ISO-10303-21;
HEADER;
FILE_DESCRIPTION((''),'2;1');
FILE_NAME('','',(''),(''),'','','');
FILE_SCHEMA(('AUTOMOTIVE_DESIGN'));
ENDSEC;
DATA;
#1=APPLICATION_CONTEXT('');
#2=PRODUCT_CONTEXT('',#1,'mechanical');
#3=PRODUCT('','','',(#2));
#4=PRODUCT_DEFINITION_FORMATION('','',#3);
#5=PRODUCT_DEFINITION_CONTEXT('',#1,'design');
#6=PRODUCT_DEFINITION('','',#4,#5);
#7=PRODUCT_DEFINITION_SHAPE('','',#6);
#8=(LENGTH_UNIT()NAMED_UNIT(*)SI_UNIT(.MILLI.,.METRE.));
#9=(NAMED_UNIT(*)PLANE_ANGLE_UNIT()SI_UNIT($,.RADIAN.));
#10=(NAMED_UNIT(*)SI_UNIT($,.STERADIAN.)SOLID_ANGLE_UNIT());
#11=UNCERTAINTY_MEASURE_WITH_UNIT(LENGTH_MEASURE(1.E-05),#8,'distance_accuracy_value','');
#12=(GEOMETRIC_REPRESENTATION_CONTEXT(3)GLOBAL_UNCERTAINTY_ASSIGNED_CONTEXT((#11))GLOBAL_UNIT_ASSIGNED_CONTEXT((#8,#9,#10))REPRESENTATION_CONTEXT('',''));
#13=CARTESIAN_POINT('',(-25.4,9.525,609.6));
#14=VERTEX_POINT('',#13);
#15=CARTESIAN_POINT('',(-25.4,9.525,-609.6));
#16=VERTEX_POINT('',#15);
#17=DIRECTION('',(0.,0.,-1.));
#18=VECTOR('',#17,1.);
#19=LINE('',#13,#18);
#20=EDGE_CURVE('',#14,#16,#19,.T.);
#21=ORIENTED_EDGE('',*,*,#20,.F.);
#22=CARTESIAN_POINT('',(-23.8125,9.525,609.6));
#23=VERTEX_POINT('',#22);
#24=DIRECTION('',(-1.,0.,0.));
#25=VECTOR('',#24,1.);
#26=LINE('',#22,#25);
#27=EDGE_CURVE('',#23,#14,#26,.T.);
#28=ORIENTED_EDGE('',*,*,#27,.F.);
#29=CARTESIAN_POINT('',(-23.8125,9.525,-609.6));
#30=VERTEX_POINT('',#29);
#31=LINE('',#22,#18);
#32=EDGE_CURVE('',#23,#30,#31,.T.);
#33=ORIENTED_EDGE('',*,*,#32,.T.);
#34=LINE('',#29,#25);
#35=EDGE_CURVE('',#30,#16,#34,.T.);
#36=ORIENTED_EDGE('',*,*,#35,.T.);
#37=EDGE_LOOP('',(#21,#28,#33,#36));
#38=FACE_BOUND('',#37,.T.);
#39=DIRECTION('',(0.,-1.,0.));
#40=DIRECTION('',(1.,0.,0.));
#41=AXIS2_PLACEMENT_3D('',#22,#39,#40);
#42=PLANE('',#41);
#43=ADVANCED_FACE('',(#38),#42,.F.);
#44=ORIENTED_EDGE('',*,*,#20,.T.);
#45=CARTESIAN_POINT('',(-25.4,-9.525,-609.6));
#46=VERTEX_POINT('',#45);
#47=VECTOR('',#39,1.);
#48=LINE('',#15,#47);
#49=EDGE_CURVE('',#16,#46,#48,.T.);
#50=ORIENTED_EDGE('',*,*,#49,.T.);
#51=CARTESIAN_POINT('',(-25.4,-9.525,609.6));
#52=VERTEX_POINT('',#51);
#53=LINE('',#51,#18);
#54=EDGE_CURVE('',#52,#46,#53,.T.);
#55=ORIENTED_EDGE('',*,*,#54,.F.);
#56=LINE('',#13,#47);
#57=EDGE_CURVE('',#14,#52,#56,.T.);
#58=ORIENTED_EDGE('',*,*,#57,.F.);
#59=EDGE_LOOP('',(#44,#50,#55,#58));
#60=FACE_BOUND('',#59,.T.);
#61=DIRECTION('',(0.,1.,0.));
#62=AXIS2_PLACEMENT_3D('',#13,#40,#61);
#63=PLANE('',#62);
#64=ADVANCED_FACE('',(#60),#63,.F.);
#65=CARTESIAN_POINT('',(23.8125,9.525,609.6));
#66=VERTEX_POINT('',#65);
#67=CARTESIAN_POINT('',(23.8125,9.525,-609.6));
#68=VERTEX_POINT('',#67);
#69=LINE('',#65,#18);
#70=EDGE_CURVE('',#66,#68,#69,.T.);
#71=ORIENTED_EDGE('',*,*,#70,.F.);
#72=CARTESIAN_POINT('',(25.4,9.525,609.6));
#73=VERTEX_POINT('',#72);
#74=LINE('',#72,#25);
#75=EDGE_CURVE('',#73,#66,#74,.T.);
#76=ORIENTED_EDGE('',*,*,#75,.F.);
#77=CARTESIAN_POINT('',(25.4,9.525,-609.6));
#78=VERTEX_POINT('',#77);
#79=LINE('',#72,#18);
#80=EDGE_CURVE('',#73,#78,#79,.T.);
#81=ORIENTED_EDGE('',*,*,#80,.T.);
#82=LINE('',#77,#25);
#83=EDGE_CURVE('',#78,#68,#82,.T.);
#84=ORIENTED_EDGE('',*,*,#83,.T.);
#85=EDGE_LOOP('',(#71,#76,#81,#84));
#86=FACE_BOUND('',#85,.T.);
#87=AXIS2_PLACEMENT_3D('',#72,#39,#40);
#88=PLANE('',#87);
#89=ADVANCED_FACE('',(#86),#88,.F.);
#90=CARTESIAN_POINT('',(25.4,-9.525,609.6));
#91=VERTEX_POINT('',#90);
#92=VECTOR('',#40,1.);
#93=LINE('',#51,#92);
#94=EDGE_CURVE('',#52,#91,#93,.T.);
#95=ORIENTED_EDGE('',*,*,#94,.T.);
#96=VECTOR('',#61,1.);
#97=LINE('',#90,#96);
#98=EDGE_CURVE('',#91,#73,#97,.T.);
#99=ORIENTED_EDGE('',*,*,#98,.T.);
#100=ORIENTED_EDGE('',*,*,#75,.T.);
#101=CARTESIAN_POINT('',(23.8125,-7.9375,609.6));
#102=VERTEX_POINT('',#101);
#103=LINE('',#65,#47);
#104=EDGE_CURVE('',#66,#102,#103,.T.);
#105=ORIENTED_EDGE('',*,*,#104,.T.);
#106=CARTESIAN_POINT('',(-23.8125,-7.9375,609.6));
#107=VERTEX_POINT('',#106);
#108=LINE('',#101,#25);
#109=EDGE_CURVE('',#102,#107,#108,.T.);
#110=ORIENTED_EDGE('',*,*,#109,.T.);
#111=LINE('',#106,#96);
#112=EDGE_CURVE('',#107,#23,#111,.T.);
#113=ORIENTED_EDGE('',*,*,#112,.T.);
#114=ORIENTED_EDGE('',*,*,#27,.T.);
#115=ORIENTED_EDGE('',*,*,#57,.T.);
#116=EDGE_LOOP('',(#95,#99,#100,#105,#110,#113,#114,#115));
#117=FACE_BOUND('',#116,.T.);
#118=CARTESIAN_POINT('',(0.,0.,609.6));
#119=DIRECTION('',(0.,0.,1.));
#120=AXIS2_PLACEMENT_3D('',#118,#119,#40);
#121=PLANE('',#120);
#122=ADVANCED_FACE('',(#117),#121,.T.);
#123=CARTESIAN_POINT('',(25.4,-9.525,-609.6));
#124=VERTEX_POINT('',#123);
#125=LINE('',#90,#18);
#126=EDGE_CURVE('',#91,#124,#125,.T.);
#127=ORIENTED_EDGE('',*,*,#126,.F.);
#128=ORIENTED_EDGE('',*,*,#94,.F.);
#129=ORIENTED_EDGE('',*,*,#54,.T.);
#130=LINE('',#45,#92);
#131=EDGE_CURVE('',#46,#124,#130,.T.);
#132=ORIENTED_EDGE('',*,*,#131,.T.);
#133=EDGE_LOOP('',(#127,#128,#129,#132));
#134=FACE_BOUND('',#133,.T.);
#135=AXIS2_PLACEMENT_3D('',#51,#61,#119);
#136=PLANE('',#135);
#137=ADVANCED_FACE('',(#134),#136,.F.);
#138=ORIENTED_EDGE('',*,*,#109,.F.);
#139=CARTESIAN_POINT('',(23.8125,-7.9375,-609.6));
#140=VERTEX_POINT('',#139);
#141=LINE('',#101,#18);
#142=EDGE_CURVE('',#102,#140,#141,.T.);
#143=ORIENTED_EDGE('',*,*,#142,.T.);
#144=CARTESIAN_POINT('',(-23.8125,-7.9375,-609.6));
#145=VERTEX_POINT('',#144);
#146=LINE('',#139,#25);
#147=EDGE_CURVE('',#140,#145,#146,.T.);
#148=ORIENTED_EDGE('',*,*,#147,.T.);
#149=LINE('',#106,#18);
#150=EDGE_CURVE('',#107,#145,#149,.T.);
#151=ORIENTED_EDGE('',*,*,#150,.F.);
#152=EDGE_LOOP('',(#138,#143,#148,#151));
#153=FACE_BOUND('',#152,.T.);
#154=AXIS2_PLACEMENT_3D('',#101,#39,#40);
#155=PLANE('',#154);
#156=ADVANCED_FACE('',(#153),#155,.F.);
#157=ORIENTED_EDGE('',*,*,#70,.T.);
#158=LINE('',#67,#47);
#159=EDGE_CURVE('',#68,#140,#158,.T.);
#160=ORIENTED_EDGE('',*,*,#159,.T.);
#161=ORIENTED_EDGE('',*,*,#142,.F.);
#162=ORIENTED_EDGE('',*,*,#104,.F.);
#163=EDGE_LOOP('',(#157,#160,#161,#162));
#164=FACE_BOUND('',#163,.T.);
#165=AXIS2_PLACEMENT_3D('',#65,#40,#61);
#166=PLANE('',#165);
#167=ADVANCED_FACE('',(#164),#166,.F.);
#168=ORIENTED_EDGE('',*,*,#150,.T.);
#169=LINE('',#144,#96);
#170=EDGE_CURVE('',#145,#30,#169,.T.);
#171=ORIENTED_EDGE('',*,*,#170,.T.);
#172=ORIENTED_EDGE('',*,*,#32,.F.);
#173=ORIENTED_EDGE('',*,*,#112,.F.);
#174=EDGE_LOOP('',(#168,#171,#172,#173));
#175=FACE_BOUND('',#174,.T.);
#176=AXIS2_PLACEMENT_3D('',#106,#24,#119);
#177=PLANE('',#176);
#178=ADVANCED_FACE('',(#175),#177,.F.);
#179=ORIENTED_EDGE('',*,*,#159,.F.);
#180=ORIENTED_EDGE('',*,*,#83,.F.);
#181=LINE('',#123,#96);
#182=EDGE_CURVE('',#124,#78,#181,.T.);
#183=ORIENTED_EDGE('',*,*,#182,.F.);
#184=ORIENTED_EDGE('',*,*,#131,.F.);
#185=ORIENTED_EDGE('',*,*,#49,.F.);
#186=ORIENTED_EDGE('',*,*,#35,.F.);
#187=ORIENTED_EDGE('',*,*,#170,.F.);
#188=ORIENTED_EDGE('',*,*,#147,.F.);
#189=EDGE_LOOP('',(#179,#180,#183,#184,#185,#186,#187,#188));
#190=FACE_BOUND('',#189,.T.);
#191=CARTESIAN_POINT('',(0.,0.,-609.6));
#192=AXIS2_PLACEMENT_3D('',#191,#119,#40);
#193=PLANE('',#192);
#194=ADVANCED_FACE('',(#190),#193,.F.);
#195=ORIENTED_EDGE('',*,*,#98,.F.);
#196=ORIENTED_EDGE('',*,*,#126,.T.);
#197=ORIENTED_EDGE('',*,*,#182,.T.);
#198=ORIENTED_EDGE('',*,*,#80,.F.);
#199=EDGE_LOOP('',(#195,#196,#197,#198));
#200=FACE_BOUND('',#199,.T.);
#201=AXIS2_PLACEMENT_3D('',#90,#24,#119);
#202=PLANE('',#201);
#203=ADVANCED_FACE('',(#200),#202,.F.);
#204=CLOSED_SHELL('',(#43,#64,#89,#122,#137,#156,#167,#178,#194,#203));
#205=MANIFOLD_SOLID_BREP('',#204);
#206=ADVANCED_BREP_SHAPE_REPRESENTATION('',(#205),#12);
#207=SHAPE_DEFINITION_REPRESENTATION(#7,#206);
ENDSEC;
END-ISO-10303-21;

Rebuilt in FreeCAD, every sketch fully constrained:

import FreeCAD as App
import Part
import Sketcher
from FreeCAD import Vector
Q = App.Units.Quantity


def add_polygon(sketch, points):
    """Adds a closed chain of lines whose ends are joined by coincident constraints."""
    first, n = sketch.GeometryCount, len(points)
    for a, b in zip(points, points[1:] + points[:1]):
        sketch.addGeometry(Part.LineSegment(App.Vector(*a, 0), App.Vector(*b, 0)), False)
    for i in range(n):
        sketch.addConstraint(Sketcher.Constraint("Coincident", first + i, 2, first + (i + 1) % n, 1))

doc = App.newDocument("Part")
body = doc.addObject("PartDesign::Body", "Body")

# Sketch on XY plane
sketch1 = body.newObject("Sketcher::SketchObject", "Sketch")
sketch1.AttachmentSupport = (doc.getObject("XY_Plane"), [""])
sketch1.MapMode = "FlatFace"
add_polygon(sketch1, [(-25.4, 9.525), (-25.4, -9.525), (25.4, -9.525), (25.4, 9.525), (23.8125, 9.525), (23.8125, -7.9375), (-23.8125, -7.9375), (-23.8125, 9.525)])  # lines 0-7
sketch1.addConstraint([
    Sketcher.Constraint("Vertical", 0),
    Sketcher.Constraint("Horizontal", 1),
    Sketcher.Constraint("Vertical", 2),
    Sketcher.Constraint("Horizontal", 3),
    Sketcher.Constraint("Vertical", 4),
    Sketcher.Constraint("Horizontal", 5),
    Sketcher.Constraint("Vertical", 6),
    Sketcher.Constraint("Horizontal", 7),
    Sketcher.Constraint("Symmetric", 0, 2, 2, 2, -1, 1),
    Sketcher.Constraint("Symmetric", 3, 2, 6, 2, -2),
    Sketcher.Constraint("DistanceX", 1, 1, 1, 2, Q("2 in")),
    Sketcher.Constraint("DistanceY", 0, 2, 0, 1, Q("0.75 in")),
    Sketcher.Constraint("DistanceX", 3, 2, 3, 1, Q("0.0625 in")),
    Sketcher.Constraint("DistanceY", 4, 2, 4, 1, Q("0.6875 in")),
])
pad1 = body.newObject("PartDesign::Pad", "Pad")
pad1.Profile = sketch1
pad1.Length = Q("48 in")
pad1.Midplane = True

doc.recompute()
